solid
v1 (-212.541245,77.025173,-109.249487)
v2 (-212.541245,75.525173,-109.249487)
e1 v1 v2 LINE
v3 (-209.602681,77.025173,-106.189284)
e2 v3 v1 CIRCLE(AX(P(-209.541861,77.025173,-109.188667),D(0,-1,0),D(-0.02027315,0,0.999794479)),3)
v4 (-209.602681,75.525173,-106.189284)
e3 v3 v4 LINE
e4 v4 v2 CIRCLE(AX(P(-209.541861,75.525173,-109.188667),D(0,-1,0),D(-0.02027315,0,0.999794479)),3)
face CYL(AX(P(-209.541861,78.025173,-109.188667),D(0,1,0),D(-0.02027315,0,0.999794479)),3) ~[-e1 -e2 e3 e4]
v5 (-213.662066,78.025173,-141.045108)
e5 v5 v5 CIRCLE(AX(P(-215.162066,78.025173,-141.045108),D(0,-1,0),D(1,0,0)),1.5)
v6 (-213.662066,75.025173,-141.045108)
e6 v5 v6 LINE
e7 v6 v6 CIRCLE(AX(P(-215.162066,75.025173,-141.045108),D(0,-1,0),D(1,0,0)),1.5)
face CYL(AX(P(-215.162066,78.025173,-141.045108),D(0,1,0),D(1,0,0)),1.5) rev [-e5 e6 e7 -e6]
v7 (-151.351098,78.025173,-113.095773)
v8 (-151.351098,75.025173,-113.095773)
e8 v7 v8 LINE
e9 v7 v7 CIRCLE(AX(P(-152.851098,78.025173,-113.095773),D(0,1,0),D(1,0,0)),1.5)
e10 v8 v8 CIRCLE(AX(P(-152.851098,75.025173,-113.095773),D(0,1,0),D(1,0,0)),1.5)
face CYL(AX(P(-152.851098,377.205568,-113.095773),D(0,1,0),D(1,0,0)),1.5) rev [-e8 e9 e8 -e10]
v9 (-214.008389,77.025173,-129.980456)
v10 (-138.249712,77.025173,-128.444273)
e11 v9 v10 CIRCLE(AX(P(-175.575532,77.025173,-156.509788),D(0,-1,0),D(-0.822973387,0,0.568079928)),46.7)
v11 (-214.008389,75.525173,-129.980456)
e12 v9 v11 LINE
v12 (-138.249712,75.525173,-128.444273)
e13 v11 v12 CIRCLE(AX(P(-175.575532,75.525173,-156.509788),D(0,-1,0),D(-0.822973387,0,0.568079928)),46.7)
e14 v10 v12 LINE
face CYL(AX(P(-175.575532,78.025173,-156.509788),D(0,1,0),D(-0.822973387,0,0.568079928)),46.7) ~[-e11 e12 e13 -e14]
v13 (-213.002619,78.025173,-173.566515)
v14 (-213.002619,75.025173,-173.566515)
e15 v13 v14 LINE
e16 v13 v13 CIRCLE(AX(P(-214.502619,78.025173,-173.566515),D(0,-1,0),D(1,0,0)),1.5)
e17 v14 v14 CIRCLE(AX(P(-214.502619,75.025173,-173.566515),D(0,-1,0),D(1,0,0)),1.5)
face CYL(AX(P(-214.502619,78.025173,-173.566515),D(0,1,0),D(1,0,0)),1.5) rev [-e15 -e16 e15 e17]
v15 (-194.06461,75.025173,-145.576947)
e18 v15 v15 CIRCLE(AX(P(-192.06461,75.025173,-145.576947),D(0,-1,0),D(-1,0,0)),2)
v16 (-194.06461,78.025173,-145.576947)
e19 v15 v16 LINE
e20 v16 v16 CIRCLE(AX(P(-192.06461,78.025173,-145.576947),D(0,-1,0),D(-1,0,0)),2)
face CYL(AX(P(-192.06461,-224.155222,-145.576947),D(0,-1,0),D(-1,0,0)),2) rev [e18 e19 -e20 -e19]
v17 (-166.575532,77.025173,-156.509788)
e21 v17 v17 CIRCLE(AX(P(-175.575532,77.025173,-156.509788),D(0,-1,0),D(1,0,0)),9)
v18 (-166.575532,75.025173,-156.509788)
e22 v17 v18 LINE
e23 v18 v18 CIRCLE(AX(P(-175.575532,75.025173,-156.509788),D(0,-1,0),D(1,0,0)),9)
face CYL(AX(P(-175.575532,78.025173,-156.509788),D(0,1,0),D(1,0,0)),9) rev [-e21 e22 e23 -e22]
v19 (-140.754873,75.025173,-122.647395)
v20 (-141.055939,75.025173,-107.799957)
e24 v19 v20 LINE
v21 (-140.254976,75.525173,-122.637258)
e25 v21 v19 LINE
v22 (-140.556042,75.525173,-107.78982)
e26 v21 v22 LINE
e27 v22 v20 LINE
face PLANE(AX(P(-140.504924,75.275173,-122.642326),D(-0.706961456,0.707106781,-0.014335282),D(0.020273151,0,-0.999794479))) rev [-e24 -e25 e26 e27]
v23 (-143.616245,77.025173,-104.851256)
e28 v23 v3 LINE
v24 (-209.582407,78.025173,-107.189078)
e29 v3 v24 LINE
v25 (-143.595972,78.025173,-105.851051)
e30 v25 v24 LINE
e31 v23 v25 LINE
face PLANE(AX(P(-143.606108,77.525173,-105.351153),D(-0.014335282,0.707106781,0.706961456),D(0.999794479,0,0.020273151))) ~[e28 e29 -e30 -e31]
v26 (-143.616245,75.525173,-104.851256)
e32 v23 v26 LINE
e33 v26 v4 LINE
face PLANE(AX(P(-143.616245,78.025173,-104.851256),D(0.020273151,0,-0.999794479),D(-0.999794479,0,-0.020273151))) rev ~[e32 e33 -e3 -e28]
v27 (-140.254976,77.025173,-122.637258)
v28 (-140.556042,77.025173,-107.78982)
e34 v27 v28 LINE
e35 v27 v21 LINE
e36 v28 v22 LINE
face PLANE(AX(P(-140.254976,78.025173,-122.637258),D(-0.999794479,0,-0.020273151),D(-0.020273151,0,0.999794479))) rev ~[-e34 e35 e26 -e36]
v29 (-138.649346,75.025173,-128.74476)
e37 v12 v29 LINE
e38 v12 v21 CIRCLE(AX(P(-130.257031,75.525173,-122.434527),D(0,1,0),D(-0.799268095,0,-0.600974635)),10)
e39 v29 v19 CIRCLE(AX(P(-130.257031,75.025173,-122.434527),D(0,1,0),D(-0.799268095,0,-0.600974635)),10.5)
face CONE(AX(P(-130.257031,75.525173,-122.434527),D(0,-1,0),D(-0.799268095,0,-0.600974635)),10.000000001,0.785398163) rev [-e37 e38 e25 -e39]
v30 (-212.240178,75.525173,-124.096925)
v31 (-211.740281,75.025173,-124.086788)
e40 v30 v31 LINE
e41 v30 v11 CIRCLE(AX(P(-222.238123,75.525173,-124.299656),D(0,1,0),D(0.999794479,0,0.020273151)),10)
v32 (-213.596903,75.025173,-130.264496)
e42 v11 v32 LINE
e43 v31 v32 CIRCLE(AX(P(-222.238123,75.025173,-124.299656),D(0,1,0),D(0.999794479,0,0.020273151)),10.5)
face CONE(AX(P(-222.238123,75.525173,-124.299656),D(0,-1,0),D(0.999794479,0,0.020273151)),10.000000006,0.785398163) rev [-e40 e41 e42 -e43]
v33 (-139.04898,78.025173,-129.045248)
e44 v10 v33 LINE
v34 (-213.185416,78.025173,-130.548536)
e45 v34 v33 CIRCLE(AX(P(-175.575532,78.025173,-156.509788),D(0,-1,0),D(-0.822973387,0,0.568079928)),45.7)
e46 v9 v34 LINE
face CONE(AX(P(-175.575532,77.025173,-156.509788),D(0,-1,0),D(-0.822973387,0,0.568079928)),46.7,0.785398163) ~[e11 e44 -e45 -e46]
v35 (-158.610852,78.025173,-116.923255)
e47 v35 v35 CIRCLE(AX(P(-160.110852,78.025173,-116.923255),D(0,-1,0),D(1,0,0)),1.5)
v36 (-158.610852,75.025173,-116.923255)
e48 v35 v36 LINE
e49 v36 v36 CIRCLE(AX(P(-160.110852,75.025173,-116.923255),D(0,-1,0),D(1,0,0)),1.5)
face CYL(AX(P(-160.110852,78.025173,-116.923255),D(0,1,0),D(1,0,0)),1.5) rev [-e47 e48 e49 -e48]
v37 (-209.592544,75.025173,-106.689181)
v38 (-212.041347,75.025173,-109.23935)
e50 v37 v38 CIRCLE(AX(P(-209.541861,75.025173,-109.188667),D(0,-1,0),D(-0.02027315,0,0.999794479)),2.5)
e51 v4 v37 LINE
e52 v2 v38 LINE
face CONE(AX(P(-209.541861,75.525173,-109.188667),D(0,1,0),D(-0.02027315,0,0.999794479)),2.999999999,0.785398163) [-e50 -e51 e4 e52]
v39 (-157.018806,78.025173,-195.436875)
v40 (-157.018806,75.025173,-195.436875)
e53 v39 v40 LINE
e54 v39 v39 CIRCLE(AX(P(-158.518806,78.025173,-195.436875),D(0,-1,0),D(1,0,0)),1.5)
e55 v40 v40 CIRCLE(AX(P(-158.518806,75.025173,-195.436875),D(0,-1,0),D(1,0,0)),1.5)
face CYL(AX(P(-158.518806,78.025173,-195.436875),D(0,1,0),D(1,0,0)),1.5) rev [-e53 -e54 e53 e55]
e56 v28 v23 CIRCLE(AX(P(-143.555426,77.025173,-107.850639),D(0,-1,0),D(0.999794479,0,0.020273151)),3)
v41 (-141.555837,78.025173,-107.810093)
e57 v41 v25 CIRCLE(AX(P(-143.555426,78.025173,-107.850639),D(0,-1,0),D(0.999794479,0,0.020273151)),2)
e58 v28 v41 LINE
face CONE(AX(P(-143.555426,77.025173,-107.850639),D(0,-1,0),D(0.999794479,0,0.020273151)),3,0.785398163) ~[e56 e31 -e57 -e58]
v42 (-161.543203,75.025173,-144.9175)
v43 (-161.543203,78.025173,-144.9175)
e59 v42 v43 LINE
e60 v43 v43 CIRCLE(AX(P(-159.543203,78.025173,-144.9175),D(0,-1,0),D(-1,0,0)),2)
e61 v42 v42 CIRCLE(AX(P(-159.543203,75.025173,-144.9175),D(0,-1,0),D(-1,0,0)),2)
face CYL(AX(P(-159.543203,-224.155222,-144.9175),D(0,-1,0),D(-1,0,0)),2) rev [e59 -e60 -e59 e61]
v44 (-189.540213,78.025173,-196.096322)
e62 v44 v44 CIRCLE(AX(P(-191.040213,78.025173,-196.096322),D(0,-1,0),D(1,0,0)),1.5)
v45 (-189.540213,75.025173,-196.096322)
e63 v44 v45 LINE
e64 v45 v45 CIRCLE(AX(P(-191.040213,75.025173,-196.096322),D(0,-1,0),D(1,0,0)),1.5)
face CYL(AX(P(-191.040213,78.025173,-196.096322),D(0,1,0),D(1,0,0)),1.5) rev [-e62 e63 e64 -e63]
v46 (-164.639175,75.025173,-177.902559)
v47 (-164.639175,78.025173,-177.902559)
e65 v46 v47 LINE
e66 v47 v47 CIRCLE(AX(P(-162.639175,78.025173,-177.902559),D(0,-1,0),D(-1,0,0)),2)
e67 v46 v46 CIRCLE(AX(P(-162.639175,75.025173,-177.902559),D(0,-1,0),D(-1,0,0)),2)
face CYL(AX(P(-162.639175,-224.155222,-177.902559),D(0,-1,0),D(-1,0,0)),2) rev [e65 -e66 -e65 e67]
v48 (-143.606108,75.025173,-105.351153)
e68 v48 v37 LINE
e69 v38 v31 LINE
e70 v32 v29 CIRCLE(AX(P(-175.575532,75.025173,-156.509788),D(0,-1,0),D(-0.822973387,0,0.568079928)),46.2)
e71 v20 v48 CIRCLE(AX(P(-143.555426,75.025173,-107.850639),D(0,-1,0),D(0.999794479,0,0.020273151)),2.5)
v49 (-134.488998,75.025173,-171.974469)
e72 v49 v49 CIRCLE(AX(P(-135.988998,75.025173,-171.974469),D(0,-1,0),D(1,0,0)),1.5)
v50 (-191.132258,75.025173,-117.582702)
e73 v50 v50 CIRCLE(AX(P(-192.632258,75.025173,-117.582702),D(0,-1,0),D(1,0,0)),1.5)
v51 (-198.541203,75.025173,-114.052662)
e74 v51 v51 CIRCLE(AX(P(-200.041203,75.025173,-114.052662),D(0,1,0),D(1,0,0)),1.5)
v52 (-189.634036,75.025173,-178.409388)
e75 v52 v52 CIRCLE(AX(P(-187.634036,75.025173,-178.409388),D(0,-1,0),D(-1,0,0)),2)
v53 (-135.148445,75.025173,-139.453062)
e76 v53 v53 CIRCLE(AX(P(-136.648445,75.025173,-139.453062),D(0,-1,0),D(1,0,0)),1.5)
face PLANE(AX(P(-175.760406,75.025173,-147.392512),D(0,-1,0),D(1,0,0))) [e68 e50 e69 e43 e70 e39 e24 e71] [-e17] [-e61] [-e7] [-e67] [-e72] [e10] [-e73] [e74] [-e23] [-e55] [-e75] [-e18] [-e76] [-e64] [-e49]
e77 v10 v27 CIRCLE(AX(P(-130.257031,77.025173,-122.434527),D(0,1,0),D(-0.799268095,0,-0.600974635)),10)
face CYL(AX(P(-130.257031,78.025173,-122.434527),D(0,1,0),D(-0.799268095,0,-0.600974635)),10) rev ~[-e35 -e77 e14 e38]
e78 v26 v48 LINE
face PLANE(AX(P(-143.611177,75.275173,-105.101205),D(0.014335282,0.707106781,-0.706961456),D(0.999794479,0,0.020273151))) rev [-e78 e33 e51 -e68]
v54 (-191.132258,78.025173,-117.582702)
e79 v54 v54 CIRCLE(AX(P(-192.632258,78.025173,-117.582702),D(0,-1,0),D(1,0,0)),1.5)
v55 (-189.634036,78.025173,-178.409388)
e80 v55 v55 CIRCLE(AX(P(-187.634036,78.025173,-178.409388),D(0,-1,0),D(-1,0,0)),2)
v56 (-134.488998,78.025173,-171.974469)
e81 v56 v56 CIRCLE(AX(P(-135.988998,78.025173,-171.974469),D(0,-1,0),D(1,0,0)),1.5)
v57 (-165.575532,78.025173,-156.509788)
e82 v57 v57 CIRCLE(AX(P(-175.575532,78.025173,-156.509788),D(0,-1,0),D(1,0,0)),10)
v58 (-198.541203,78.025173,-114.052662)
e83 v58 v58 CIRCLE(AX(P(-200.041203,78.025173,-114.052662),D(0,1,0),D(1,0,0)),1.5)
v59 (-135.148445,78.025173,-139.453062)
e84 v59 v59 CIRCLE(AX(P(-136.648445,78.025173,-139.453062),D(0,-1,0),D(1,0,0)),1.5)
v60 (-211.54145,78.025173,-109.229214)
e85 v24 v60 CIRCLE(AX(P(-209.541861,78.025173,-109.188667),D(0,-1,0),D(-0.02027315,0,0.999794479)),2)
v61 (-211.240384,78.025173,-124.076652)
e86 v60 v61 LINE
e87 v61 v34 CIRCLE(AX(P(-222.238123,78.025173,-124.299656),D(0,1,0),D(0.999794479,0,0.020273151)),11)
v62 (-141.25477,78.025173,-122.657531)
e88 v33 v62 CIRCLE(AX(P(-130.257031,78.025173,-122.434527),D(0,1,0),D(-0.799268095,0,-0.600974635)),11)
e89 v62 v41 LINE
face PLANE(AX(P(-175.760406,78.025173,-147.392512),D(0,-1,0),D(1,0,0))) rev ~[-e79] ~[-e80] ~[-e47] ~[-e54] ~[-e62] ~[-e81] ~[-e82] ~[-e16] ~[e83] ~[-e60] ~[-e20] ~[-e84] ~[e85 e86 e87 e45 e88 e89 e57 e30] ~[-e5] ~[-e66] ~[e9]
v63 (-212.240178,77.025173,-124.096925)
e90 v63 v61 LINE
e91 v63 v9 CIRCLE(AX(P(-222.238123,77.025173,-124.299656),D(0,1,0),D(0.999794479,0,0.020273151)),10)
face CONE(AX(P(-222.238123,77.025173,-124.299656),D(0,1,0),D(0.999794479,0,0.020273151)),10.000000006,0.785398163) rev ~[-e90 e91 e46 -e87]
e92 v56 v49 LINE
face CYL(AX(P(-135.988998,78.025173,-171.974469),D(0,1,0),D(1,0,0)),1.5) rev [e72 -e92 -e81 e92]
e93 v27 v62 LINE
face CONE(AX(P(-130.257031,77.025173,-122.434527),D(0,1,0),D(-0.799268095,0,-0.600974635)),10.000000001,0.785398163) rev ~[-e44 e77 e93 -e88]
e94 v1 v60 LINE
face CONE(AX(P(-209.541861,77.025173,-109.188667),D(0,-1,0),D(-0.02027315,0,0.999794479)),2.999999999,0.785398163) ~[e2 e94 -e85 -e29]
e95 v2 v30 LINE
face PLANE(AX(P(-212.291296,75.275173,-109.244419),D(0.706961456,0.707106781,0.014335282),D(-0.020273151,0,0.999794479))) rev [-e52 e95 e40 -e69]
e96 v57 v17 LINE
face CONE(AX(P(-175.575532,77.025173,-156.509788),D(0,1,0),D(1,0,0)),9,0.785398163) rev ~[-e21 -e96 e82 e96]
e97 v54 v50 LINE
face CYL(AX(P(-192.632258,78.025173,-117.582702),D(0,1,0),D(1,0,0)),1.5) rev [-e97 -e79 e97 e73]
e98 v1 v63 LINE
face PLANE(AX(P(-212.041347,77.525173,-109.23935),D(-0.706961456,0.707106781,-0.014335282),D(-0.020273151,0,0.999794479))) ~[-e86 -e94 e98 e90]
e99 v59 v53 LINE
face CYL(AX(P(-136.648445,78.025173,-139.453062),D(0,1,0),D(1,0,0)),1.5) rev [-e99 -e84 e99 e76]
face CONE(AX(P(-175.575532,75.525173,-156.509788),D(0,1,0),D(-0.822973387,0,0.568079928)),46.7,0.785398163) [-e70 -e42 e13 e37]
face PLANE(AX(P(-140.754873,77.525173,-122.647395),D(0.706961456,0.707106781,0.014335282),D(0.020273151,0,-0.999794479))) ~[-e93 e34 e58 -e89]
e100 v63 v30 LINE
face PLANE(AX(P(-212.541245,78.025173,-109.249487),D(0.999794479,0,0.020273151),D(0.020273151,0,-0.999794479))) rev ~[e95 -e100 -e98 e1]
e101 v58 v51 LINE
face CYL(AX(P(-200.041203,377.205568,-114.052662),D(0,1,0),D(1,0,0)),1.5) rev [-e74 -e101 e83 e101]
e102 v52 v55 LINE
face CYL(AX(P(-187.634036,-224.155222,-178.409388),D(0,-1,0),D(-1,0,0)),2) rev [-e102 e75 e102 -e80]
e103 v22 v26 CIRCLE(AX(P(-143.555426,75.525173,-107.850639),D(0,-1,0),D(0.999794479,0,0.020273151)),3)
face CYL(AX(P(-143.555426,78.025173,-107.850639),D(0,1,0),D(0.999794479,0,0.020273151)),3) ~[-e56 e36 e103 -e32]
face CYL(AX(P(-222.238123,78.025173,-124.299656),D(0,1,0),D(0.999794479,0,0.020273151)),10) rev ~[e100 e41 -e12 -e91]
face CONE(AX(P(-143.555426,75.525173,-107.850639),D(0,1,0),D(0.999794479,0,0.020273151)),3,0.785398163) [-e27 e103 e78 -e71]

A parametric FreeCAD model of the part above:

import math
import FreeCAD as App
import Part
import Sketcher
from FreeCAD import Vector
Q = App.Units.Quantity


def edges_at(feature, points):
    """Names of the edges that pass closest to the given points."""
    edges = feature.Shape.Edges
    near = lambda p: min(range(len(edges)), key=lambda i: edges[i].distToShape(Part.Vertex(*p))[0])
    return sorted({f"Edge{near(p) + 1}" for p in points})

doc = App.newDocument("Part")
params = doc.addObject("Spreadsheet::Sheet", "Params")
for row, (alias, value) in enumerate([
    ("sketch1_diameter", "3 mm"),
    ("sketch1_diameter2", "18 mm"),
    ("sketch1_radius", "10 mm"),
    ("sketch1_radius2", "3 mm"),
    ("sketch1_radius3", "46.7 mm"),
    ("pad1_length", "3 mm"),
    ("chamfer_size", "0.5 mm"),
    ("sketch2_diameter", "3 mm"),
    ("sketch3_diameter", "4 mm"),
    ("chamfer2_size", "1 mm"),
    ("sketch4_diameter", "3 mm"),
], start=1):
    params.set(f"A{row}", alias)
    params.set(f"B{row}", "=" + value)
    params.setAlias(f"B{row}", alias)

body = doc.addObject("PartDesign::Body", "Body")

# Sketch on XZ plane
sketch1 = doc.addObject("Sketcher::SketchObject", "Sketch")
body.addObject(sketch1)
sketch1.AttachmentSupport = (doc.XZ_Plane, [""])
sketch1.MapMode = "FlatFace"
sketch1.AttachmentOffset = App.Placement(Vector(0, 0, -78.025173), App.Rotation())
sketch1.addGeometry([
    Part.LineSegment(Vector(-212.5, -109.2, 0), Vector(-212.2, -124.1, 0)),  # 0
    Part.ArcOfCircle(Part.Circle(Vector(-222.2, -124.3, 0), Vector(0, 0, 1), 10), math.radians(-35), math.radians(1)),  # 1
    Part.ArcOfCircle(Part.Circle(Vector(-175.6, -156.5, 0), Vector(0, 0, 1), 46.7), math.radians(145), math.radians(397)),  # 2
    Part.ArcOfCircle(Part.Circle(Vector(-130.3, -122.4, 0), Vector(0, 0, 1), 10), math.radians(-179), math.radians(-143)),  # 3
    Part.LineSegment(Vector(-140.3, -122.6, 0), Vector(-140.6, -107.8, 0)),  # 4
    Part.ArcOfCircle(Part.Circle(Vector(-143.6, -107.9, 0), Vector(0, 0, 1), 3), math.radians(1), math.radians(91)),  # 5
    Part.LineSegment(Vector(-143.6, -104.9, 0), Vector(-209.6, -106.2, 0)),  # 6
    Part.ArcOfCircle(Part.Circle(Vector(-209.5, -109.2, 0), Vector(0, 0, 1), 3), math.radians(91), math.radians(181)),  # 7
    Part.Circle(Vector(-191, -196.1, 0), Vector(0, 0, 1), 1.5),  # 8
    Part.Circle(Vector(-214.5, -173.6, 0), Vector(0, 0, 1), 1.5),  # 9
    Part.Circle(Vector(-158.5, -195.4, 0), Vector(0, 0, 1), 1.5),  # 10
    Part.Circle(Vector(-175.6, -156.5, 0), Vector(0, 0, 1), 9),  # 11
    Part.Circle(Vector(-136, -172, 0), Vector(0, 0, 1), 1.5),  # 12
    Part.Circle(Vector(-215.2, -141, 0), Vector(0, 0, 1), 1.5),  # 13
    Part.Circle(Vector(-192.6, -117.6, 0), Vector(0, 0, 1), 1.5),  # 14
    Part.Circle(Vector(-136.6, -139.5, 0), Vector(0, 0, 1), 1.5),  # 15
    Part.Circle(Vector(-160.1, -116.9, 0), Vector(0, 0, 1), 1.5),  # 16
], False)
sketch1.addConstraint([
    Sketcher.Constraint("Tangent", 0, 2, 1, 2),
    Sketcher.Constraint("Tangent", 1, 1, 2, 1),
    Sketcher.Constraint("Tangent", 2, 2, 3, 2),
    Sketcher.Constraint("Tangent", 3, 1, 4, 1),
    Sketcher.Constraint("Tangent", 4, 2, 5, 1),
    Sketcher.Constraint("Tangent", 5, 2, 6, 1),
    Sketcher.Constraint("Tangent", 6, 2, 7, 1),
    Sketcher.Constraint("Tangent", 7, 2, 0, 1),
    Sketcher.Constraint("Coincident", 11, 3, 2, 3),
    Sketcher.Constraint("Equal", 1, 3),
    Sketcher.Constraint("Equal", 5, 7),
    Sketcher.Constraint("Equal", 8, 9),
    Sketcher.Constraint("Equal", 9, 10),
    Sketcher.Constraint("Equal", 10, 12),
    Sketcher.Constraint("Equal", 12, 13),
    Sketcher.Constraint("Equal", 13, 14),
    Sketcher.Constraint("Equal", 14, 15),
    Sketcher.Constraint("Equal", 15, 16),
    Sketcher.Constraint("Parallel", 0, 4),
    Sketcher.Constraint("Perpendicular", 4, 6),
    Sketcher.Constraint("Equal", 0, 4),
    Sketcher.Constraint("Diameter", 8, Q("3 mm")),
    Sketcher.Constraint("Diameter", 11, Q("18 mm")),
    Sketcher.Constraint("Radius", 1, Q("10 mm")),
    Sketcher.Constraint("Radius", 5, Q("3 mm")),
    Sketcher.Constraint("Radius", 2, Q("46.7 mm")),
    Sketcher.Constraint("Distance", 6, Q("66 mm")),
    Sketcher.Constraint("DistanceX", 12, 3, -1, 1, Q("135.988998 mm")),
    Sketcher.Constraint("DistanceY", 16, 3, 5, 2, Q("12.071999 mm")),
    Sketcher.Constraint("DistanceY", 14, 3, -1, 1, Q("117.582702 mm")),
    Sketcher.Constraint("DistanceX", 2, 3, 3, 3, Q("45.318501 mm")),
    Sketcher.Constraint("Distance", 0, Q("14.85049 mm")),
    Sketcher.Constraint("DistanceY", 2, 3, -1, 1, Q("156.509788 mm")),
    Sketcher.Constraint("DistanceX", 3, 3, -1, 1, Q("130.257031 mm")),
    Sketcher.Constraint("DistanceX", 9, 3, -1, 1, Q("214.502619 mm")),
    Sketcher.Constraint("DistanceY", 12, 3, -1, 1, Q("171.974469 mm")),
    Sketcher.Constraint("DistanceX", 14, 3, -1, 1, Q("192.632258 mm")),
    Sketcher.Constraint("DistanceX", 16, 3, -1, 1, Q("160.110852 mm")),
    Sketcher.Constraint("DistanceX", 8, 3, 2, 3, Q("15.46468 mm")),
    Sketcher.Constraint("DistanceY", 9, 3, 1, 3, Q("49.266858 mm")),
    Sketcher.Constraint("DistanceY", 10, 3, 9, 3, Q("21.870361 mm")),
    Sketcher.Constraint("DistanceX", 10, 3, 5, 3, Q("14.96338 mm")),
    Sketcher.Constraint("DistanceY", 13, 3, 1, 3, Q("16.745452 mm")),
    Sketcher.Constraint("DistanceX", 5, 3, 15, 3, Q("6.90698 mm")),
    Sketcher.Constraint("DistanceY", 15, 3, 2, 2, Q("11.008789 mm")),
    Sketcher.Constraint("DistanceY", 8, 3, -1, 1, Q("196.096322 mm")),
    Sketcher.Constraint("DistanceX", 13, 3, -1, 1, Q("215.162066 mm")),
])
sketch1.setExpression("Constraints[21]", "Params.sketch1_diameter")
sketch1.setExpression("Constraints[22]", "Params.sketch1_diameter2")
sketch1.setExpression("Constraints[23]", "Params.sketch1_radius")
sketch1.setExpression("Constraints[24]", "Params.sketch1_radius2")
sketch1.setExpression("Constraints[25]", "Params.sketch1_radius3")
pad1 = doc.addObject("PartDesign::Pad", "Pad")
body.addObject(pad1)
pad1.Profile = sketch1
pad1.setExpression("Length", "Params.pad1_length")
doc.recompute()

chamfer = doc.addObject("PartDesign::Chamfer", "Chamfer")
body.addObject(chamfer)
chamfer.Base = (pad1, edges_at(pad1, [
    (-211.706, 75.025, -107.111),
    (-212.391, 75.025, -116.673),
    (-212.661, 75.025, -127.178),
    (-174.629, 75.025, -203.2),
    (-139.709, 75.025, -125.699),
    (-140.406, 75.025, -115.214),
    (-141.478, 75.025, -105.687),
    (-176.609, 75.025, -105.52),
]))
chamfer.setExpression("Size", "Params.chamfer_size")

# Sketch on XZ plane
sketch2 = doc.addObject("Sketcher::SketchObject", "Sketch001")
body.addObject(sketch2)
sketch2.AttachmentSupport = (doc.XZ_Plane, [""])
sketch2.MapMode = "FlatFace"
sketch2.AttachmentOffset = App.Placement(Vector(0, 0, -75.025173), App.Rotation())
sketch2.addGeometry(Part.Circle(Vector(-200, -114.1, 0), Vector(0, 0, 1), 1.5), False)
sketch2.addConstraint([
    Sketcher.Constraint("Diameter", 0, Q("3 mm")),
    Sketcher.Constraint("DistanceY", 0, 3, -1, 1, Q("114.052662 mm")),
    Sketcher.Constraint("DistanceX", 0, 3, -1, 1, Q("200.041203 mm")),
])
sketch2.setExpression("Constraints[0]", "Params.sketch2_diameter")
pocket1 = doc.addObject("PartDesign::Pocket", "Pocket")
body.addObject(pocket1)
pocket1.Profile = sketch2
pocket1.Type = "ThroughAll"
pocket1.Midplane = True

# Sketch on XZ plane
sketch3 = doc.addObject("Sketcher::SketchObject", "Sketch002")
body.addObject(sketch3)
sketch3.AttachmentSupport = (doc.XZ_Plane, [""])
sketch3.MapMode = "FlatFace"
sketch3.AttachmentOffset = App.Placement(Vector(0, 0, -78.025173), App.Rotation())
sketch3.addGeometry([
    Part.Circle(Vector(-192.1, -145.6, 0), Vector(0, 0, 1), 2),
    Part.Circle(Vector(-159.5, -144.9, 0), Vector(0, 0, 1), 2),
    Part.Circle(Vector(-187.6, -178.4, 0), Vector(0, 0, 1), 2),
    Part.Circle(Vector(-162.6, -177.9, 0), Vector(0, 0, 1), 2),
], False)
sketch3.addConstraint([
    Sketcher.Constraint("Equal", 0, 1),
    Sketcher.Constraint("Equal", 1, 2),
    Sketcher.Constraint("Equal", 2, 3),
    Sketcher.Constraint("Diameter", 0, Q("4 mm")),
    Sketcher.Constraint("DistanceY", 1, 3, -1, 1, Q("144.9175 mm")),
    Sketcher.Constraint("DistanceX", 0, 3, -1, 1, Q("192.06461 mm")),
    Sketcher.Constraint("DistanceY", 2, 3, -1, 1, Q("178.409388 mm")),
    Sketcher.Constraint("DistanceY", 3, 3, -1, 1, Q("177.902559 mm")),
    Sketcher.Constraint("DistanceY", 2, 3, 0, 3, Q("32.832441 mm")),
    Sketcher.Constraint("DistanceX", 2, 3, 3, 3, Q("24.994862 mm")),
    Sketcher.Constraint("DistanceX", 3, 3, 1, 3, Q("3.095971 mm")),
    Sketcher.Constraint("DistanceX", 1, 3, -1, 1, Q("159.543203 mm")),
])
sketch3.setExpression("Constraints[3]", "Params.sketch3_diameter")
pocket2 = doc.addObject("PartDesign::Pocket", "Pocket001")
body.addObject(pocket2)
pocket2.Profile = sketch3
pocket2.Type = "ThroughAll"
pocket2.Midplane = True
doc.recompute()

chamfer2 = doc.addObject("PartDesign::Chamfer", "Chamfer001")
body.addObject(chamfer2)
chamfer2.Base = (pocket2, edges_at(pocket2, [
    (-212.391, 78.025, -116.673),
    (-211.706, 78.025, -107.111),
    (-176.609, 78.025, -105.52),
    (-141.478, 78.025, -105.687),
    (-184.576, 78.025, -156.51),
    (-140.406, 78.025, -115.214),
    (-139.709, 78.025, -125.699),
    (-174.629, 78.025, -203.2),
    (-212.661, 78.025, -127.178),
]))
chamfer2.setExpression("Size", "Params.chamfer2_size")

# Sketch on XZ plane
sketch4 = doc.addObject("Sketcher::SketchObject", "Sketch003")
body.addObject(sketch4)
sketch4.AttachmentSupport = (doc.XZ_Plane, [""])
sketch4.MapMode = "FlatFace"
sketch4.AttachmentOffset = App.Placement(Vector(0, 0, -75.025173), App.Rotation())
sketch4.addGeometry(Part.Circle(Vector(-152.9, -113.1, 0), Vector(0, 0, 1), 1.5), False)
sketch4.addConstraint([
    Sketcher.Constraint("Diameter", 0, Q("3 mm")),
    Sketcher.Constraint("DistanceX", 0, 3, -1, 1, Q("152.851098 mm")),
    Sketcher.Constraint("DistanceY", 0, 3, -1, 1, Q("113.095773 mm")),
])
sketch4.setExpression("Constraints[0]", "Params.sketch4_diameter")
pocket3 = doc.addObject("PartDesign::Pocket", "Pocket002")
body.addObject(pocket3)
pocket3.Profile = sketch4
pocket3.Type = "ThroughAll"
pocket3.Midplane = True

doc.recompute()
